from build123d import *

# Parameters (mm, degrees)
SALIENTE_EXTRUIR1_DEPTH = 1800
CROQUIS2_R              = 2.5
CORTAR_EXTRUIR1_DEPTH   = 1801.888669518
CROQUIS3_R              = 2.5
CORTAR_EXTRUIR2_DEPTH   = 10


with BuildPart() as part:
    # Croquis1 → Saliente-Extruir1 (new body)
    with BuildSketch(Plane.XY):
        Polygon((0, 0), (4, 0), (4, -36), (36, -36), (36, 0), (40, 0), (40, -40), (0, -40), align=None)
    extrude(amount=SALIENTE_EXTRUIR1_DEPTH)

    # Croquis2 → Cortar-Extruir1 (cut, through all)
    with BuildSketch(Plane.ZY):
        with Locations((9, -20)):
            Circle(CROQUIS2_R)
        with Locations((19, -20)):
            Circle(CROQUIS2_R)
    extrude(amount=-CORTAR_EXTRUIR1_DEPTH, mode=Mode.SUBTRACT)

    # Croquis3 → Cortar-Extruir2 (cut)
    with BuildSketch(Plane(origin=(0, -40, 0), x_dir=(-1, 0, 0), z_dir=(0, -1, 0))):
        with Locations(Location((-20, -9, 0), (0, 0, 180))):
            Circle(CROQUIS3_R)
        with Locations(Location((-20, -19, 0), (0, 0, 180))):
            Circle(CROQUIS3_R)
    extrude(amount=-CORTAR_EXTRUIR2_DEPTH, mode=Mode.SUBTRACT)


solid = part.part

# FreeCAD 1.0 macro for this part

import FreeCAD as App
import Part
import Sketcher
from FreeCAD import Vector

doc = App.newDocument("Part")
body = doc.addObject("PartDesign::Body", "Body")

sketch1 = doc.addObject("Sketcher::SketchObject", "Sketch")
body.addObject(sketch1)
sketch1.AttachmentSupport = (doc.XY_Plane, [""])
sketch1.MapMode = "FlatFace"
sketch1.addGeometry([
    Part.LineSegment(Vector(4, 0, 0), Vector(0, 0, 0)),
    Part.LineSegment(Vector(0, 0, 0), Vector(0, -40, 0)),
    Part.LineSegment(Vector(0, -40, 0), Vector(40, -40, 0)),
    Part.LineSegment(Vector(40, -40, 0), Vector(40, 0, 0)),
    Part.LineSegment(Vector(40, 0, 0), Vector(36, 0, 0)),
    Part.LineSegment(Vector(36, 0, 0), Vector(36, -36, 0)),
    Part.LineSegment(Vector(36, -36, 0), Vector(4, -36, 0)),
    Part.LineSegment(Vector(4, -36, 0), Vector(4, 0, 0)),
], False)
sketch1.addConstraint([
    Sketcher.Constraint("Coincident", 0, 2, 1, 1),
    Sketcher.Constraint("Coincident", 1, 2, 2, 1),
    Sketcher.Constraint("Coincident", 2, 2, 3, 1),
    Sketcher.Constraint("Coincident", 3, 2, 4, 1),
    Sketcher.Constraint("Coincident", 4, 2, 5, 1),
    Sketcher.Constraint("Coincident", 5, 2, 6, 1),
    Sketcher.Constraint("Coincident", 6, 2, 7, 1),
    Sketcher.Constraint("Coincident", 7, 2, 0, 1),
    Sketcher.Constraint("Horizontal", 0),
    Sketcher.Constraint("Vertical", 1),
    Sketcher.Constraint("Horizontal", 2),
    Sketcher.Constraint("Vertical", 3),
    Sketcher.Constraint("Horizontal", 4),
    Sketcher.Constraint("Vertical", 5),
    Sketcher.Constraint("Horizontal", 6),
    Sketcher.Constraint("Vertical", 7),
    Sketcher.Constraint("Coincident", 0, 2, -1, 1),
    Sketcher.Constraint("PointOnObject", 3, 2, -1),
    Sketcher.Constraint("Equal", 0, 4),
    Sketcher.Constraint("Equal", 2, 1),
    Sketcher.Constraint("DistanceX", 0, 2, 0, 1, 4.0),
    Sketcher.Constraint("DistanceX", 2, 1, 2, 2, 40.0),
    Sketcher.Constraint("DistanceY", 5, 2, 5, 1, 36.0),
])
pad1 = doc.addObject("PartDesign::Pad", "Pad")
body.addObject(pad1)
pad1.Profile = sketch1
pad1.Length = 1800

sketch2 = doc.addObject("Sketcher::SketchObject", "Sketch001")
body.addObject(sketch2)
sketch2.AttachmentSupport = (doc.YZ_Plane, [""])
sketch2.MapMode = "FlatFace"
sketch2.addGeometry([
    Part.Circle(Vector(-20, 9, 0), Vector(0, 0, 1), 2.5),
    Part.Circle(Vector(-20, 19, 0), Vector(0, 0, 1), 2.5),
], False)
sketch2.addConstraint([
    Sketcher.Constraint("Equal", 0, 1),
    Sketcher.Constraint("Vertical", 0, 3, 1, 3),
    Sketcher.Constraint("Diameter", 0, 5.0),
    Sketcher.Constraint("DistanceX", 0, 3, -1, 1, 20.0),
    Sketcher.Constraint("DistanceY", -1, 1, 0, 3, 9.0),
    Sketcher.Constraint("DistanceY", -1, 1, 1, 3, 19.0),
])
pocket1 = doc.addObject("PartDesign::Pocket", "Pocket")
body.addObject(pocket1)
pocket1.Profile = sketch2
pocket1.Type = "ThroughAll"
pocket1.Reversed = True

sketch3 = doc.addObject("Sketcher::SketchObject", "Sketch002")
body.addObject(sketch3)
sketch3.AttachmentSupport = (doc.XZ_Plane, [""])
sketch3.MapMode = "FlatFace"
sketch3.AttachmentOffset = App.Placement(Vector(0, 0, 40), App.Rotation())
sketch3.addGeometry([
    Part.Circle(Vector(20, 9, 0), Vector(0, 0, 1), 2.5),
    Part.Circle(Vector(20, 19, 0), Vector(0, 0, 1), 2.5),
], False)
sketch3.addConstraint([
    Sketcher.Constraint("Equal", 0, 1),
    Sketcher.Constraint("Vertical", 0, 3, 1, 3),
    Sketcher.Constraint("Diameter", 0, 5.0),
    Sketcher.Constraint("DistanceX", -1, 1, 0, 3, 20.0),
    Sketcher.Constraint("DistanceY", -1, 1, 0, 3, 9.0),
    Sketcher.Constraint("DistanceY", -1, 1, 1, 3, 19.0),
])
pocket2 = doc.addObject("PartDesign::Pocket", "Pocket001")
body.addObject(pocket2)
pocket2.Profile = sketch3
pocket2.Length = 10

doc.recompute()
